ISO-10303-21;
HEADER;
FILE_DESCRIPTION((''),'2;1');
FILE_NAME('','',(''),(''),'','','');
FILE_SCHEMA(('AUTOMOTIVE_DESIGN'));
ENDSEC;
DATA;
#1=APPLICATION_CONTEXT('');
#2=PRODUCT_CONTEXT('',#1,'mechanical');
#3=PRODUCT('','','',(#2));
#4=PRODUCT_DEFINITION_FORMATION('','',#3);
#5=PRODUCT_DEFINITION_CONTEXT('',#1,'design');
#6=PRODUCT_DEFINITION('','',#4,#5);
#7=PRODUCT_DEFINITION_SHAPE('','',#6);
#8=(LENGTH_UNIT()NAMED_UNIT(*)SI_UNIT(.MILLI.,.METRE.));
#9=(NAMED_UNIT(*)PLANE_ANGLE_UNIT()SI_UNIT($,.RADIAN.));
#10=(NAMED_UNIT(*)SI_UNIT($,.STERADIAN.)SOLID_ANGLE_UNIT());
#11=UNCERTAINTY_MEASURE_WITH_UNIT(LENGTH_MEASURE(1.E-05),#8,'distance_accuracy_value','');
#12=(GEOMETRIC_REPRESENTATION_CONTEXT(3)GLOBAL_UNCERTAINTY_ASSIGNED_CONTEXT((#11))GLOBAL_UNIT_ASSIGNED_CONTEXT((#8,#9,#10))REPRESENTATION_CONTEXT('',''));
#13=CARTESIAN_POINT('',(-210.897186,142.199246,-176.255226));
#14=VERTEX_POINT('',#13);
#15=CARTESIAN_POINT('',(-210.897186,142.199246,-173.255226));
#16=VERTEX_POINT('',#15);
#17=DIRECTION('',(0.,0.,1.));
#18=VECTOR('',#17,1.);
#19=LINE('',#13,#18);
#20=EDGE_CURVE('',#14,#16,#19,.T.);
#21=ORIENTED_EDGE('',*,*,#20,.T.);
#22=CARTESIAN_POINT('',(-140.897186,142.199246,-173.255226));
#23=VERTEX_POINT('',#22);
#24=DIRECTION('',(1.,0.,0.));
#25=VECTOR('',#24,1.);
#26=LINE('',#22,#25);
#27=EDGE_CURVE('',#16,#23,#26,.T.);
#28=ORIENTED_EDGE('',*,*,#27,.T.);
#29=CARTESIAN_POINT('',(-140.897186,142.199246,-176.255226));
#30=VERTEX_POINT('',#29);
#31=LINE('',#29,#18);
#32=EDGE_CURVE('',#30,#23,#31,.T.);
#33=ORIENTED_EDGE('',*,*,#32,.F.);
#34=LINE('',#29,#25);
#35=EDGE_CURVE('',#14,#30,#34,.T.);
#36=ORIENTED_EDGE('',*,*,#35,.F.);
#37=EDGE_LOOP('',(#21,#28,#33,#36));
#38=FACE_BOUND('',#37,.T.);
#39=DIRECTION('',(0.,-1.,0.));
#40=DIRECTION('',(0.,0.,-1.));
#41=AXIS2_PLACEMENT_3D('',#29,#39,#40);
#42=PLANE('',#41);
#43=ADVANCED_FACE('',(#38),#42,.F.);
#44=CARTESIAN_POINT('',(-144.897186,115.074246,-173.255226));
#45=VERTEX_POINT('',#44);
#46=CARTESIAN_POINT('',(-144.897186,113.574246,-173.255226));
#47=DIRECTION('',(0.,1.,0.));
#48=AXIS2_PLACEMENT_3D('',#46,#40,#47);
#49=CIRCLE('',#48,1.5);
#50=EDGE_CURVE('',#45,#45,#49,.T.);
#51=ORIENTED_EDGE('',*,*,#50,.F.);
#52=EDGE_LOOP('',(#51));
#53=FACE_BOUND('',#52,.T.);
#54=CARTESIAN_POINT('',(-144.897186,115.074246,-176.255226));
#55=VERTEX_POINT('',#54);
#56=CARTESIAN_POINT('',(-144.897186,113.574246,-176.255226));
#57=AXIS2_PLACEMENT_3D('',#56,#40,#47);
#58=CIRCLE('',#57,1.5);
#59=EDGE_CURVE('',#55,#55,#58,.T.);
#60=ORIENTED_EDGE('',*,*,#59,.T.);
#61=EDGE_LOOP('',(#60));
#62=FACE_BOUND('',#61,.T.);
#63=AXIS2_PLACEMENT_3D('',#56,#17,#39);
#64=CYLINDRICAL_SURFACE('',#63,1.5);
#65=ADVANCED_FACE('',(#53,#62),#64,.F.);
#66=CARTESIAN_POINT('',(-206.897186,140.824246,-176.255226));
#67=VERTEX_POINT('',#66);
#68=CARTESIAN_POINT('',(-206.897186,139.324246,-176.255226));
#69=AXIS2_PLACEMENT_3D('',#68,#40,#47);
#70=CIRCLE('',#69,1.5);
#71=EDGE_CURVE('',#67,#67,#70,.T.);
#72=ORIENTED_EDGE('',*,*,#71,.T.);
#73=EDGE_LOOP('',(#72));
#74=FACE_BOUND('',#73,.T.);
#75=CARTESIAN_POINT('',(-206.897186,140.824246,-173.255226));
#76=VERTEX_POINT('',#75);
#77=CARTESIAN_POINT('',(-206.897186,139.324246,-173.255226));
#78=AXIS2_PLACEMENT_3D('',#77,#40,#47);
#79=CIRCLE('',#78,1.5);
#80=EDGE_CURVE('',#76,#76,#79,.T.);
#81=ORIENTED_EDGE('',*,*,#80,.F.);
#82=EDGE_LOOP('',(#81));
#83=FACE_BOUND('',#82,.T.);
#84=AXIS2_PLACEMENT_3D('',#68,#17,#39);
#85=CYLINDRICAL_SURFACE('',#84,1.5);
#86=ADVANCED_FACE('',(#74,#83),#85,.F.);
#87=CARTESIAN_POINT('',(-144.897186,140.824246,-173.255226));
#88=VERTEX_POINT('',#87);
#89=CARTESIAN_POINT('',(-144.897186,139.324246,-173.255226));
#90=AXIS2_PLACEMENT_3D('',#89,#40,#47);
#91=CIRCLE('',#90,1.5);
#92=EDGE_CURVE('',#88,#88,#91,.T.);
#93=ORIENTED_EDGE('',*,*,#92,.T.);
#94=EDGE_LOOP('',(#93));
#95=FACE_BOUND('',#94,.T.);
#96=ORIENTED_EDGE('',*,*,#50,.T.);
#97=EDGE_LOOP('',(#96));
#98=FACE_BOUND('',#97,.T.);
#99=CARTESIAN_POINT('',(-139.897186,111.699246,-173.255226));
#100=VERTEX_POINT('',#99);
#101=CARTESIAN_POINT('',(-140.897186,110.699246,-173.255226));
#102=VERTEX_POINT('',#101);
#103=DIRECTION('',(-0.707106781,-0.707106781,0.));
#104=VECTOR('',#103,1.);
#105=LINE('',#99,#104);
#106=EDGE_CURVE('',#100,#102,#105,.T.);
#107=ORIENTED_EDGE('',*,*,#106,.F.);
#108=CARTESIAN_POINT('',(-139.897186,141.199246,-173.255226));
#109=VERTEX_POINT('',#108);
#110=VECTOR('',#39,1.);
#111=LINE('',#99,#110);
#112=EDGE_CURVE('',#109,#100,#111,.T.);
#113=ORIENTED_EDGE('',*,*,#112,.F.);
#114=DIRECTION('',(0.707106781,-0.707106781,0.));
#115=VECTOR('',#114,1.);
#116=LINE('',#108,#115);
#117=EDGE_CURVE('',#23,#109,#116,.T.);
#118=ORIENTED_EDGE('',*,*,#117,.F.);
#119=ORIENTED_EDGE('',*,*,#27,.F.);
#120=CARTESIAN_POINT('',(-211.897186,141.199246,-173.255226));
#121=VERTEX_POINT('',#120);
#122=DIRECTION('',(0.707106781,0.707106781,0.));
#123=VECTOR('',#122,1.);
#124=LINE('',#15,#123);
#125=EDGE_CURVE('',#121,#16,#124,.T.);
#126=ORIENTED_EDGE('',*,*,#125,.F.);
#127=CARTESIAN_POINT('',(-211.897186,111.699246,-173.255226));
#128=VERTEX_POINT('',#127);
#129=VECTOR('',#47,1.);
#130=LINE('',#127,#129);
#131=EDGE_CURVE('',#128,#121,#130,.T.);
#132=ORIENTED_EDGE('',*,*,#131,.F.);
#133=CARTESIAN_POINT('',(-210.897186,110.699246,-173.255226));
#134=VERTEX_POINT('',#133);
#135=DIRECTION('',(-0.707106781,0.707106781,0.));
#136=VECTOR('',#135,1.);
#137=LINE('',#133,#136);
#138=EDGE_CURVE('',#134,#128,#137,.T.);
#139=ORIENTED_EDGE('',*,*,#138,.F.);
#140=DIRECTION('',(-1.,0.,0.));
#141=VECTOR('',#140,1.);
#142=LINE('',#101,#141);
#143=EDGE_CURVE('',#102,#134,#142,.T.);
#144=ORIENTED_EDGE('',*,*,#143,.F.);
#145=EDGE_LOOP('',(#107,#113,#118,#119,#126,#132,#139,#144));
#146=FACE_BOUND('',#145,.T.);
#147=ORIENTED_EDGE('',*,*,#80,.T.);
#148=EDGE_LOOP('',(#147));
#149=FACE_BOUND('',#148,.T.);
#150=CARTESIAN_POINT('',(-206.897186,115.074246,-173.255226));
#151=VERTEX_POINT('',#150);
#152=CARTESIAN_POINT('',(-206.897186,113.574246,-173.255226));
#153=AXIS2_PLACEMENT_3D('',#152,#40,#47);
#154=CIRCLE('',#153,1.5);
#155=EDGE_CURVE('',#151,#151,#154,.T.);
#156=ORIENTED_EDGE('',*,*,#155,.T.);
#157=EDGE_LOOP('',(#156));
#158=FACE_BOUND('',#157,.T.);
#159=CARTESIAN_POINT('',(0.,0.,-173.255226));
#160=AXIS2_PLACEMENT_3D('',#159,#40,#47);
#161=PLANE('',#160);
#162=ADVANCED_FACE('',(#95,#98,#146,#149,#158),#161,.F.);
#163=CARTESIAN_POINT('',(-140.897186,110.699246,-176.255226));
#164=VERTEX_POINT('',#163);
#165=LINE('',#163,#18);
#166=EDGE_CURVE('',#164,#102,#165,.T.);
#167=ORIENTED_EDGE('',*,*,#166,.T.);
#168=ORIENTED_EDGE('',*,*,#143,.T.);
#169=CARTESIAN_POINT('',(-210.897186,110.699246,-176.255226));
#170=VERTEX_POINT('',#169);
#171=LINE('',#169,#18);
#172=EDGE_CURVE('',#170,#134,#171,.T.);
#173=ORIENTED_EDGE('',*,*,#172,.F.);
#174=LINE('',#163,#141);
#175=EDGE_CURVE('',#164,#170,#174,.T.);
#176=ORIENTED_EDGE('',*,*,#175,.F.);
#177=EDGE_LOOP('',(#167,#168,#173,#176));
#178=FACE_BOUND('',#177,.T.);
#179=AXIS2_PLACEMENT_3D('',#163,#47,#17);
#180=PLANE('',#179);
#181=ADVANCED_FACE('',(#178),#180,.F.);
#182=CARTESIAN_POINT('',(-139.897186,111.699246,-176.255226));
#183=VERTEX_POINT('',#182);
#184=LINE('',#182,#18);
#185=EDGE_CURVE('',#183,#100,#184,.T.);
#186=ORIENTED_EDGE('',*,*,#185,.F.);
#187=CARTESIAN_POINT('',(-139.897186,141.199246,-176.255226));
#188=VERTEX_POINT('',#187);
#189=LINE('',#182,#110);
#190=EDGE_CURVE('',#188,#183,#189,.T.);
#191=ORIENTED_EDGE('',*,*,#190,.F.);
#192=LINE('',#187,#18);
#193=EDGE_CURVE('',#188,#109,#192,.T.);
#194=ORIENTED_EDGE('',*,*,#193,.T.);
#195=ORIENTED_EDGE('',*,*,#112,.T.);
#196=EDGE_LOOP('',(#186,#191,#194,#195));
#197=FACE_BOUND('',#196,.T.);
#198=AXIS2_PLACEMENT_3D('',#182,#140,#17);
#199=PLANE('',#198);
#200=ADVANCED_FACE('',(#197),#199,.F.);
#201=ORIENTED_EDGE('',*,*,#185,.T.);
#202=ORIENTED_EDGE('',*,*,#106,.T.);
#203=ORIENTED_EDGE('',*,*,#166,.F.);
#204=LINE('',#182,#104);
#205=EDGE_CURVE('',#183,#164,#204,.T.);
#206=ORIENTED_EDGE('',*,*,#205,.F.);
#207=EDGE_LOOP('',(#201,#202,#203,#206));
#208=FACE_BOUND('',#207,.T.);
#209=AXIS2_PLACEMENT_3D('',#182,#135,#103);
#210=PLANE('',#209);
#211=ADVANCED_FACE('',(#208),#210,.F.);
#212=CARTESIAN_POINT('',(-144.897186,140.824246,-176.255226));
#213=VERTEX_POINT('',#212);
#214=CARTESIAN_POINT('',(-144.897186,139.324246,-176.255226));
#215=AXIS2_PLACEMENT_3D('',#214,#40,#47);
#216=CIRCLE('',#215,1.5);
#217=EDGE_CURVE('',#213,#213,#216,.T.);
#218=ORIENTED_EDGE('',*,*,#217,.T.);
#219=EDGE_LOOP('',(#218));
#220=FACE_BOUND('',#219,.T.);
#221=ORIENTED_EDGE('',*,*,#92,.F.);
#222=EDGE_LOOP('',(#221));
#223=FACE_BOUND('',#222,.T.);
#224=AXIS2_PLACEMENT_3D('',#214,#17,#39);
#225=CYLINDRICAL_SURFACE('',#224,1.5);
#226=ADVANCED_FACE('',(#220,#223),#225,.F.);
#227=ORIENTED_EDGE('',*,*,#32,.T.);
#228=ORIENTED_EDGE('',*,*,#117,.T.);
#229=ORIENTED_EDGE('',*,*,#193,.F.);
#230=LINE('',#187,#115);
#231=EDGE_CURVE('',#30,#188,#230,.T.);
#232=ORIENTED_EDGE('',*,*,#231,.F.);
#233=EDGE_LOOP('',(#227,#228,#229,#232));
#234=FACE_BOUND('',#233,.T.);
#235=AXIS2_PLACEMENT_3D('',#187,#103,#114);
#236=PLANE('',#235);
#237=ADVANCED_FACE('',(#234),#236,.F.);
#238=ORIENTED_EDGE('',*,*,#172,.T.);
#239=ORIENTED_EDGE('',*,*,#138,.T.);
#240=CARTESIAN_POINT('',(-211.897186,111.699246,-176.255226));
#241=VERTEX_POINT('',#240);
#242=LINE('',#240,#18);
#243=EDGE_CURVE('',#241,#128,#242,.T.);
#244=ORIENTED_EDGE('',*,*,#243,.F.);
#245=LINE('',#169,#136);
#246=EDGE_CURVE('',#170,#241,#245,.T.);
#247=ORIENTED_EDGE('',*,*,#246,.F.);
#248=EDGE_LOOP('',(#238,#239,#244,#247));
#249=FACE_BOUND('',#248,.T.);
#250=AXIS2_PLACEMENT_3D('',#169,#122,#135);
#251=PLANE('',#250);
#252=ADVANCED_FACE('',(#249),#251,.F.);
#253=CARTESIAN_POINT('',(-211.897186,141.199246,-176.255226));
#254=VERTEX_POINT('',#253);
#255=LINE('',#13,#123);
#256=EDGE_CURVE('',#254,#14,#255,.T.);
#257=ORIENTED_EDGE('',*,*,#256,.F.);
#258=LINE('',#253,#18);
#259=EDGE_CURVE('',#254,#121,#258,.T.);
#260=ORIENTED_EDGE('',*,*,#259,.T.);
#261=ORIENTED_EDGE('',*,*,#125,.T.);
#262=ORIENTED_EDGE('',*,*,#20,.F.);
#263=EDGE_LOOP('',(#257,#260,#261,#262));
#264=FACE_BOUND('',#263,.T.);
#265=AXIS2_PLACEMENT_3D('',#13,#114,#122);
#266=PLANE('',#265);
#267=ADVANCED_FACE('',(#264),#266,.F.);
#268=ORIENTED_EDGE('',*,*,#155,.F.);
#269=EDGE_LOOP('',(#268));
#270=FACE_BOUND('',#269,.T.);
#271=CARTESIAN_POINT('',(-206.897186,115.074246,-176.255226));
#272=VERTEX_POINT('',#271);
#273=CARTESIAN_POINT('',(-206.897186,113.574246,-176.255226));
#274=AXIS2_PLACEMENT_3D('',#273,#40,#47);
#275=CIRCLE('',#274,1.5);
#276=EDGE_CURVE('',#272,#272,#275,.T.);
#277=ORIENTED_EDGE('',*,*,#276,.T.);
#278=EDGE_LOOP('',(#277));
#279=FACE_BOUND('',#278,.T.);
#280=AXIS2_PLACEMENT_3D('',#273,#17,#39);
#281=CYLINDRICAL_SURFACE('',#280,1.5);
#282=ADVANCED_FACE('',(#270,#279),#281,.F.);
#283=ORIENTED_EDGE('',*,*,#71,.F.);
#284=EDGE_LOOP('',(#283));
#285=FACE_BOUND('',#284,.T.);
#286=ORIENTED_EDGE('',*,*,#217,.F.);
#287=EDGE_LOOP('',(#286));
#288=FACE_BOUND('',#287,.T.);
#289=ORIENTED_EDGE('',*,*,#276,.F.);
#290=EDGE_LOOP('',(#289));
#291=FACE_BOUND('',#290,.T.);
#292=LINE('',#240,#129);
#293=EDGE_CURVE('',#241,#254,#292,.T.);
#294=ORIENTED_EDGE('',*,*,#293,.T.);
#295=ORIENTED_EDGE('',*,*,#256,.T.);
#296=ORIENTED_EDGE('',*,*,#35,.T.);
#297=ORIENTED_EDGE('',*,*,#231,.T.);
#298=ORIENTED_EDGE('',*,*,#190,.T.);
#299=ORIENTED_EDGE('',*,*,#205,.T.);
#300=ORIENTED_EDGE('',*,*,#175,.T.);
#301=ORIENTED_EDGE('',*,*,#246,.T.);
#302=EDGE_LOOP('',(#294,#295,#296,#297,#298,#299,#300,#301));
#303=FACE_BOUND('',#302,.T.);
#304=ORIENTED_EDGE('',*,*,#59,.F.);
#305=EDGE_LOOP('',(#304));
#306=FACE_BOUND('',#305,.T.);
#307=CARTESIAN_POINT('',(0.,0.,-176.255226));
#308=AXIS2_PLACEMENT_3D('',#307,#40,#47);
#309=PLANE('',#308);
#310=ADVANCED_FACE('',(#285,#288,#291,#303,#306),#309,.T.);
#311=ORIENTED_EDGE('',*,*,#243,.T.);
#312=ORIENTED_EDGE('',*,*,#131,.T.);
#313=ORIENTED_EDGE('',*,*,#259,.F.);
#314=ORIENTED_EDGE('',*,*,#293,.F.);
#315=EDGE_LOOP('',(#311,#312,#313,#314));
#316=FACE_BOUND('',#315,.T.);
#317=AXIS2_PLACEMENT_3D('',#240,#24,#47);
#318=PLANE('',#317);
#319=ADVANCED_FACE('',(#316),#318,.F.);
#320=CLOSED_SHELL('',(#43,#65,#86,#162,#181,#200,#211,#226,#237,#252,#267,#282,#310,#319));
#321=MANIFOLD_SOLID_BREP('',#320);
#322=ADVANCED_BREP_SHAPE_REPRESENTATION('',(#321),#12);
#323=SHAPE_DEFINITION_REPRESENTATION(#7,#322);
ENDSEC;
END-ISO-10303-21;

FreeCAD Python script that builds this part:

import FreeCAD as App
import Part
import Sketcher
from FreeCAD import Vector
Q = App.Units.Quantity

doc = App.newDocument("Part")
params = doc.addObject("Spreadsheet::Sheet", "Params")
for row, (alias, value) in enumerate([
    ("sketch1_diameter", "3 mm"),
    ("sketch1_width", "70 mm"),
    ("sketch1_height", "29.5 mm"),
    ("pad1_length", "3 mm"),
], start=1):
    params.set(f"A{row}", alias)
    params.set(f"B{row}", "=" + value)
    params.setAlias(f"B{row}", alias)

body = doc.addObject("PartDesign::Body", "Body")

sketch1 = body.newObject("Sketcher::SketchObject", "Sketch")
sketch1.AttachmentSupport = (doc.getObject("XY_Plane"), [""])
sketch1.MapMode = "FlatFace"
sketch1.AttachmentOffset = App.Placement(Vector(0, 0, -173.255226), App.Rotation())
sketch1.addGeometry([
    Part.LineSegment(Vector(-140.9, 110.7, 0), Vector(-210.9, 110.7, 0)),
    Part.LineSegment(Vector(-210.9, 110.7, 0), Vector(-211.9, 111.7, 0)),
    Part.LineSegment(Vector(-211.9, 111.7, 0), Vector(-211.9, 141.2, 0)),
    Part.LineSegment(Vector(-211.9, 141.2, 0), Vector(-210.9, 142.2, 0)),
    Part.LineSegment(Vector(-210.9, 142.2, 0), Vector(-140.9, 142.2, 0)),
    Part.LineSegment(Vector(-140.9, 142.2, 0), Vector(-139.9, 141.2, 0)),
    Part.LineSegment(Vector(-139.9, 141.2, 0), Vector(-139.9, 111.7, 0)),
    Part.LineSegment(Vector(-139.9, 111.7, 0), Vector(-140.9, 110.7, 0)),
    Part.Circle(Vector(-144.9, 113.6, 0), Vector(0, 0, 1), 1.5),
    Part.Circle(Vector(-206.9, 113.6, 0), Vector(0, 0, 1), 1.5),
    Part.Circle(Vector(-144.9, 139.3, 0), Vector(0, 0, 1), 1.5),
    Part.Circle(Vector(-206.9, 139.3, 0), Vector(0, 0, 1), 1.5),
], False)
sketch1.addConstraint([
    Sketcher.Constraint("Coincident", 0, 2, 1, 1),
    Sketcher.Constraint("Coincident", 1, 2, 2, 1),
    Sketcher.Constraint("Coincident", 2, 2, 3, 1),
    Sketcher.Constraint("Coincident", 3, 2, 4, 1),
    Sketcher.Constraint("Coincident", 4, 2, 5, 1),
    Sketcher.Constraint("Coincident", 5, 2, 6, 1),
    Sketcher.Constraint("Coincident", 6, 2, 7, 1),
    Sketcher.Constraint("Coincident", 7, 2, 0, 1),
    Sketcher.Constraint("Horizontal", 0),
    Sketcher.Constraint("Vertical", 2),
    Sketcher.Constraint("Horizontal", 4),
    Sketcher.Constraint("Vertical", 6),
    Sketcher.Constraint("Equal", 8, 9),
    Sketcher.Constraint("Equal", 9, 10),
    Sketcher.Constraint("Equal", 10, 11),
    Sketcher.Constraint("Perpendicular", 1, 3),
    Sketcher.Constraint("Perpendicular", 3, 5),
    Sketcher.Constraint("Perpendicular", 5, 7),
    Sketcher.Constraint("Horizontal", 8, 3, 9, 3),
    Sketcher.Constraint("Horizontal", 10, 3, 11, 3),
    Sketcher.Constraint("Horizontal", 2, 2, 5, 2),
    Sketcher.Constraint("Horizontal", 1, 2, 6, 2),
    Sketcher.Constraint("Vertical", 8, 3, 10, 3),
    Sketcher.Constraint("Vertical", 9, 3, 11, 3),
    Sketcher.Constraint("Vertical", 0, 2, 3, 2),
    Sketcher.Constraint("Vertical", 4, 2, 7, 2),
    Sketcher.Constraint("Diameter", 8, Q("3 mm")),
    Sketcher.Constraint("DistanceX", 0, 2, 0, 1, Q("70 mm")),
    Sketcher.Constraint("DistanceY", 2, 1, 2, 2, Q("29.5 mm")),
    Sketcher.Constraint("DistanceX", 9, 3, 8, 3, Q("62 mm")),
    Sketcher.Constraint("DistanceX", 0, 2, 9, 3, Q("4 mm")),
    Sketcher.Constraint("DistanceX", 1, 2, 0, 2, Q("1 mm")),
    Sketcher.Constraint("DistanceY", 8, 3, 10, 3, Q("25.75 mm")),
    Sketcher.Constraint("DistanceY", 0, 2, 9, 3, Q("2.875 mm")),
    Sketcher.Constraint("DistanceX", 8, 3, -1, 1, Q("144.897186 mm")),
    Sketcher.Constraint("DistanceY", -1, 1, 8, 3, Q("113.574246 mm")),
])
sketch1.setExpression("Constraints[26]", "Params.sketch1_diameter")
sketch1.setExpression("Constraints[27]", "Params.sketch1_width")
sketch1.setExpression("Constraints[28]", "Params.sketch1_height")
pad1 = body.newObject("PartDesign::Pad", "Pad")
pad1.Profile = sketch1
pad1.setExpression("Length", "Params.pad1_length")
pad1.Reversed = True

doc.recompute()
